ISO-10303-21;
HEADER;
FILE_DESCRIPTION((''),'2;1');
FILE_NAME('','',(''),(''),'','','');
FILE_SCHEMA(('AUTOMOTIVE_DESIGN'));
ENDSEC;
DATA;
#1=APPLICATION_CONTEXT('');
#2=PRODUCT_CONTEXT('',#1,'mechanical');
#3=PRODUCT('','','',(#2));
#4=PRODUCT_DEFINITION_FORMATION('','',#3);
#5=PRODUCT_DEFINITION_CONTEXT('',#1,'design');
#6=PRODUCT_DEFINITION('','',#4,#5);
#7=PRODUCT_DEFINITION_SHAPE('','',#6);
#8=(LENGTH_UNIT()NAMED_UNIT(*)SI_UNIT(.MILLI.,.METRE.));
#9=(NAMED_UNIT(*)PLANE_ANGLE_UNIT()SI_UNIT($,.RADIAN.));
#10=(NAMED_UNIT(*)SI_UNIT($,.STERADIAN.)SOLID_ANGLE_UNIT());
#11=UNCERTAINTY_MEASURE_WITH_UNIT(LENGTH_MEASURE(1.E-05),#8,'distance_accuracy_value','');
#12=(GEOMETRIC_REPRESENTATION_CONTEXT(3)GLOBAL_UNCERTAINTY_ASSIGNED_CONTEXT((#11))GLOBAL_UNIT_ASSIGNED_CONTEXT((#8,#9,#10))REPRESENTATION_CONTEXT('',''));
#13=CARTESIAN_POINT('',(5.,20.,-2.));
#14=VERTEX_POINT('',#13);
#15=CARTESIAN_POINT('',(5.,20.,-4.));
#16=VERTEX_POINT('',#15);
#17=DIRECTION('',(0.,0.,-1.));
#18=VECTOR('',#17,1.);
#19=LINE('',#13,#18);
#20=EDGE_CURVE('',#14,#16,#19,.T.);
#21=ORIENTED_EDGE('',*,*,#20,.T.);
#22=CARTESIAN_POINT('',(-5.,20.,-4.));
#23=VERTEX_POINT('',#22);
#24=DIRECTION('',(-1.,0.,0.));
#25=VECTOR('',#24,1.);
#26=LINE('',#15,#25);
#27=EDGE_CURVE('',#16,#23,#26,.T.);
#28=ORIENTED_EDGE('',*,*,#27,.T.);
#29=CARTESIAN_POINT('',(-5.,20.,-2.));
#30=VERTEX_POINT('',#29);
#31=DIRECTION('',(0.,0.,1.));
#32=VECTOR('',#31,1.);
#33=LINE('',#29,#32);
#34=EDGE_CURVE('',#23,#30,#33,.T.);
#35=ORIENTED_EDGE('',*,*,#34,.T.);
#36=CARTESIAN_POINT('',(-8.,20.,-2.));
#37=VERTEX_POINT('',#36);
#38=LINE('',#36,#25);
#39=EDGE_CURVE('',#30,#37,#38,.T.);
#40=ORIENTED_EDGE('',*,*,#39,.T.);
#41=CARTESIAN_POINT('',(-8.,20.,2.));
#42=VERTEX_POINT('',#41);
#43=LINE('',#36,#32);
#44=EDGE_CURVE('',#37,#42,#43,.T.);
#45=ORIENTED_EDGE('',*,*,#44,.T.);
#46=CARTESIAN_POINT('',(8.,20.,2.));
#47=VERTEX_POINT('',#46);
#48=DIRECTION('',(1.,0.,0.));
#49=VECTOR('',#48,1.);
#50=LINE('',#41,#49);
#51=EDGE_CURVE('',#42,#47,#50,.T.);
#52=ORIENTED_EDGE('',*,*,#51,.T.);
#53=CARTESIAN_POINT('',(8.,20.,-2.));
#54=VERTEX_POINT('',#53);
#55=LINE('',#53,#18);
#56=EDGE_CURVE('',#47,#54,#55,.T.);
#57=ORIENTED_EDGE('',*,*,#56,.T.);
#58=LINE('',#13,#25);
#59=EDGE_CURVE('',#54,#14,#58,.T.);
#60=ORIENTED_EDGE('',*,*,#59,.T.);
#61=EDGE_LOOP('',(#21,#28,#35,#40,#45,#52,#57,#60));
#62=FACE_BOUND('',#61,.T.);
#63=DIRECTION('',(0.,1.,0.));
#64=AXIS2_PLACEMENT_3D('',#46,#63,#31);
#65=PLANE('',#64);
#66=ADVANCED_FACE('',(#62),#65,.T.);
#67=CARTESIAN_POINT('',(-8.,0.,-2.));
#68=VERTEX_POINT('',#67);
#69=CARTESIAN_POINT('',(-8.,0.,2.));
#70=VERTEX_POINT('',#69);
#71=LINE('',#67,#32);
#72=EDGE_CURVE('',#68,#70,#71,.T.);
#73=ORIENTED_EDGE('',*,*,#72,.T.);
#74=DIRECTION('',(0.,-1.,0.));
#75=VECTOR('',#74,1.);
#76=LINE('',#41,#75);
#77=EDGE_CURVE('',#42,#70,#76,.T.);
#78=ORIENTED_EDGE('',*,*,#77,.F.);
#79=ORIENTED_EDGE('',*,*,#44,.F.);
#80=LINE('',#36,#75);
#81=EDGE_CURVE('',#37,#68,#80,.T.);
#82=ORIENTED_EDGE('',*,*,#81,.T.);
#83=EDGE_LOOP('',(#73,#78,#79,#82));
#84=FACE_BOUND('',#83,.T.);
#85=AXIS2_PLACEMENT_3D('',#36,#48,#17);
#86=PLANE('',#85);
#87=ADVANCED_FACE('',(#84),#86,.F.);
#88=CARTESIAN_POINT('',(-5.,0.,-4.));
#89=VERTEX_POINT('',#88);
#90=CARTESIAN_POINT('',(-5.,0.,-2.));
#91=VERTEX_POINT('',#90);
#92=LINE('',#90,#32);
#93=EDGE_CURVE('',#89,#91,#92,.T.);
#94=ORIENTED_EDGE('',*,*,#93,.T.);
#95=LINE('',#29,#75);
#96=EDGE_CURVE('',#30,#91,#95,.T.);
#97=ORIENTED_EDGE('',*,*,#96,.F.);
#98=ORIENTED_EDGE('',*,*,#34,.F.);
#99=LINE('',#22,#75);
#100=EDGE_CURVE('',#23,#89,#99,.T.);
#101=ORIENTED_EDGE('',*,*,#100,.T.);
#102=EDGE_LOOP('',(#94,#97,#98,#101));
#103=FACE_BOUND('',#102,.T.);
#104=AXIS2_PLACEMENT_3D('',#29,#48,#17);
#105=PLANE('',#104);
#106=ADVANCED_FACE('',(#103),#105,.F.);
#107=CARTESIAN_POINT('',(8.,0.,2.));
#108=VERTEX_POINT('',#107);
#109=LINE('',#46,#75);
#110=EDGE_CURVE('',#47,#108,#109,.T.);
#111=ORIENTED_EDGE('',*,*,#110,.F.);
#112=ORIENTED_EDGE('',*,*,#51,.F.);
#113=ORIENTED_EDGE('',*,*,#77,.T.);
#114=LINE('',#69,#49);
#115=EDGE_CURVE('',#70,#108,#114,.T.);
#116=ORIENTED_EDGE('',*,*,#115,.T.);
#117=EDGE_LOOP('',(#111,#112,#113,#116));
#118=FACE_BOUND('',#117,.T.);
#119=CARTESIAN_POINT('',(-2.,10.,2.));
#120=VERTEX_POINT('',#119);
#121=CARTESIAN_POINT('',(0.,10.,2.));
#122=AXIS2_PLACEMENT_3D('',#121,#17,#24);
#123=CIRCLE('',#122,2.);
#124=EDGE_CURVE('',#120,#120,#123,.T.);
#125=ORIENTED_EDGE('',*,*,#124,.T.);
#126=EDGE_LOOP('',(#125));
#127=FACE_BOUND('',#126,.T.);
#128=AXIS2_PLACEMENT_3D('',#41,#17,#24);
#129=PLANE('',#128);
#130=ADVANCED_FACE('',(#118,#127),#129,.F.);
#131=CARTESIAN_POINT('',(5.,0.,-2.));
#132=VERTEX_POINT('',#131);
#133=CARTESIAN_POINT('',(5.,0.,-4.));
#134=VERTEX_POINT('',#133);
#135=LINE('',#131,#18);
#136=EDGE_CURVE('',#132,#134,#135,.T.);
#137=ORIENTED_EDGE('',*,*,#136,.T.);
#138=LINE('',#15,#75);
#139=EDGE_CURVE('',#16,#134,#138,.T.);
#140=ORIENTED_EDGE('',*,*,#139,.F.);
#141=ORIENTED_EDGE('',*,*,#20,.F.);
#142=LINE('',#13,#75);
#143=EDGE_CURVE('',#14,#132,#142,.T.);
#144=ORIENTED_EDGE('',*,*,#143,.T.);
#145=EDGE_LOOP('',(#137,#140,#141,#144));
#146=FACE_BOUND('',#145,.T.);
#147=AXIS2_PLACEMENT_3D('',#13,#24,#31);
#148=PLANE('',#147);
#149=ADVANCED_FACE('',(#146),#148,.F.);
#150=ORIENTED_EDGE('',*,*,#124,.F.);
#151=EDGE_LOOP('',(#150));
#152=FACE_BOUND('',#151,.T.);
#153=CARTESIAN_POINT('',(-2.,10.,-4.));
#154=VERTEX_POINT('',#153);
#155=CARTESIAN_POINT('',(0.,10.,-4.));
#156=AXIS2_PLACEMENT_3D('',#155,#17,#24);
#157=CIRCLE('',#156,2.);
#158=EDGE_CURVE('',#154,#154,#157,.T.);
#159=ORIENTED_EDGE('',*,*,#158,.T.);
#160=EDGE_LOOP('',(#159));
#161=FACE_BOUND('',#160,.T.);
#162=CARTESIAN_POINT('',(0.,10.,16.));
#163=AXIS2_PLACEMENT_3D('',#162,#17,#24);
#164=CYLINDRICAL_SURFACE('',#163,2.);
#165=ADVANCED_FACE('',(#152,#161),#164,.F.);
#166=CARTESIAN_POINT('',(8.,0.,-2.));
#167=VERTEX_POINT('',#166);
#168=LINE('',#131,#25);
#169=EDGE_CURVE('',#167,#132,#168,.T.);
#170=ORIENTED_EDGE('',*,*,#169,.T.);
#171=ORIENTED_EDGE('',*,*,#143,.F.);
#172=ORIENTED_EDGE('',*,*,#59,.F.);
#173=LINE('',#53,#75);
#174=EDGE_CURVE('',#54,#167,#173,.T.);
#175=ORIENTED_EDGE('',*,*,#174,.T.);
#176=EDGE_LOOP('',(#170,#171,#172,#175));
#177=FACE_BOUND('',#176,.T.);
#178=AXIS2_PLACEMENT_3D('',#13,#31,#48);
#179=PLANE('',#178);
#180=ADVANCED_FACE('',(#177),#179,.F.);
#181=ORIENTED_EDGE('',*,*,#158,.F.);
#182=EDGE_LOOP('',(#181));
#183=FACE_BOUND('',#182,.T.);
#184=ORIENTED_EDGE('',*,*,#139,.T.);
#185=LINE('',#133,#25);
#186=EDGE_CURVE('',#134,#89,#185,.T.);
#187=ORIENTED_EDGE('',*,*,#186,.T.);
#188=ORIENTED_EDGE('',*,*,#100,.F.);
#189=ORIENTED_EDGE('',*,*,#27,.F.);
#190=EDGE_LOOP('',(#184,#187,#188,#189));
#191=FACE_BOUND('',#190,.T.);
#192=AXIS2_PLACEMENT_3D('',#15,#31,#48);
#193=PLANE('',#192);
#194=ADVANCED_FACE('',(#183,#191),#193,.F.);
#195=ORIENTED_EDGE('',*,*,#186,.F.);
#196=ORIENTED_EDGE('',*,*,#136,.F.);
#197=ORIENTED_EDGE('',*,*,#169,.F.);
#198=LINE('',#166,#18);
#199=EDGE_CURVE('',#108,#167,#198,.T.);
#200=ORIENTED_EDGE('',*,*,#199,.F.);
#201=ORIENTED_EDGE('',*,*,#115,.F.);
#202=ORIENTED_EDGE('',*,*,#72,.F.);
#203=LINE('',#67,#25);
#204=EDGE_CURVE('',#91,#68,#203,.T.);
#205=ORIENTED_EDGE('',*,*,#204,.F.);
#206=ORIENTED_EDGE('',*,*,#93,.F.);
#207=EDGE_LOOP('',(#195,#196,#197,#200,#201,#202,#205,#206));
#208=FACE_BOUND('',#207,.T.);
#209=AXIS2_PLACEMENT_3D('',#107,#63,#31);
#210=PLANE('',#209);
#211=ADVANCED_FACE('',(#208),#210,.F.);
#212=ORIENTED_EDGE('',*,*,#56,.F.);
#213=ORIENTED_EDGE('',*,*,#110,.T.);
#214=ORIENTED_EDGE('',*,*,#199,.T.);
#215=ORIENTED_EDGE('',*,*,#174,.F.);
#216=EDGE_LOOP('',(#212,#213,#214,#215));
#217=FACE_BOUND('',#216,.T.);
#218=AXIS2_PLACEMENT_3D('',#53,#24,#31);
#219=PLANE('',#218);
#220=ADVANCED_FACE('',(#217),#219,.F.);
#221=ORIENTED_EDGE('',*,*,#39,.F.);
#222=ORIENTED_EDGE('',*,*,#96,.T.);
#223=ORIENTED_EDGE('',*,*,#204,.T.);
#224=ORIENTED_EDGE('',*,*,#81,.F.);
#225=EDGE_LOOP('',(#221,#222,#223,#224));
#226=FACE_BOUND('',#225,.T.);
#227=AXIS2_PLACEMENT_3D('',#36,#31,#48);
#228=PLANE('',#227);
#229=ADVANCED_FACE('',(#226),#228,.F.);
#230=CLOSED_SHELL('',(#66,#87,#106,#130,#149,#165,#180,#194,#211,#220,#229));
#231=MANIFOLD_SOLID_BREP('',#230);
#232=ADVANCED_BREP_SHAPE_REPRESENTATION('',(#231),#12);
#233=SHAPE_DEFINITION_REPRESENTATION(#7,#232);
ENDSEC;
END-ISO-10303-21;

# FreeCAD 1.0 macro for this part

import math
import FreeCAD as App
import Part
import Sketcher

V = App.Vector
Q = App.Units.Quantity


def add_polygon(sketch, points):
    """Adds a closed chain of lines whose ends are joined by coincident constraints."""
    first, n = sketch.GeometryCount, len(points)
    for a, b in zip(points, points[1:] + points[:1]):
        sketch.addGeometry(Part.LineSegment(App.Vector(*a, 0), App.Vector(*b, 0)), False)
    for i in range(n):
        sketch.addConstraint(Sketcher.Constraint("Coincident", first + i, 2, first + (i + 1) % n, 1))

doc = App.newDocument("Part")
params = doc.addObject("Spreadsheet::Sheet", "Params")
for row, (alias, value) in enumerate([
    ("sketch1_width", "3 mm"),
    ("sketch1_width2", "10 mm"),
    ("sketch1_height", "2 mm"),
    ("sketch1_height2", "4 mm"),
    ("pad1_length", "20 mm"),
    ("sketch2_radius", "2 mm"),
    ("pocket1_length", "20 mm"),
], start=1):
    params.set(f"A{row}", alias)
    params.set(f"B{row}", "=" + value)
    params.setAlias(f"B{row}", alias)

body = doc.addObject("PartDesign::Body", "Body")

# Sketch on XZ plane
sketch1 = body.newObject("Sketcher::SketchObject", "Sketch")
sketch1.AttachmentSupport = (doc.getObject("XZ_Plane"), [""])
sketch1.MapMode = "FlatFace"
add_polygon(sketch1, [(8, -2), (5, -2), (5, -4), (-5, -4), (-5, -2), (-8, -2), (-8, 2), (8, 2)])  # lines 0-7
sketch1.addConstraint([
    Sketcher.Constraint("Horizontal", 0),
    Sketcher.Constraint("Vertical", 1),
    Sketcher.Constraint("Horizontal", 2),
    Sketcher.Constraint("Vertical", 3),
    Sketcher.Constraint("Horizontal", 4),
    Sketcher.Constraint("Vertical", 5),
    Sketcher.Constraint("Horizontal", 6),
    Sketcher.Constraint("Vertical", 7),
    Sketcher.Constraint("Symmetric", 4, 2, 6, 2, -1, 1),
    Sketcher.Constraint("Symmetric", 0, 2, 3, 2, -2),
    Sketcher.Constraint("DistanceX", 0, 2, 0, 1, Q("3 mm")),
    Sketcher.Constraint("DistanceX", 2, 2, 2, 1, Q("10 mm")),
    Sketcher.Constraint("DistanceY", 1, 2, 1, 1, Q("2 mm")),
    Sketcher.Constraint("DistanceY", 5, 1, 5, 2, Q("4 mm")),
])
sketch1.setExpression("Constraints[18]", "Params.sketch1_width")
sketch1.setExpression("Constraints[19]", "Params.sketch1_width2")
sketch1.setExpression("Constraints[20]", "Params.sketch1_height")
sketch1.setExpression("Constraints[21]", "Params.sketch1_height2")
pad1 = body.newObject("PartDesign::Pad", "Pad")
pad1.Profile = sketch1
pad1.setExpression("Length", "Params.pad1_length")
pad1.Reversed = True

# Sketch on XY plane
sketch2 = body.newObject("Sketcher::SketchObject", "Sketch001")
sketch2.AttachmentSupport = (doc.getObject("XY_Plane"), [""])
sketch2.MapMode = "FlatFace"
sketch2.AttachmentOffset = App.Placement(V(0, 0, -4), App.Rotation())
sketch2.addGeometry([
    Part.ArcOfCircle(Part.Circle(V(0, 10, 0), V(0, 0, 1), 2), math.radians(63.434949), math.radians(180)),
    Part.ArcOfCircle(Part.Circle(V(0, 10, 0), V(0, 0, 1), 2), math.radians(-116.565051), math.radians(63.434949)),
    Part.ArcOfCircle(Part.Circle(V(0, 10, 0), V(0, 0, 1), 2), math.radians(180), math.radians(243.434949)),
], False)
sketch2.addConstraint([
    Sketcher.Constraint("Tangent", 0, 1, 1, 2),
    Sketcher.Constraint("Tangent", 1, 1, 2, 2),
    Sketcher.Constraint("Tangent", 2, 1, 0, 2),
    Sketcher.Constraint("PointOnObject", 0, 3, -2),
    Sketcher.Constraint("Horizontal", 1, 3, 2, 1),
    Sketcher.Constraint("Radius", 0, Q("2 mm")),
    Sketcher.Constraint("DistanceY", -1, 1, 0, 3, Q("10 mm")),
    Sketcher.Constraint("DistanceY", 1, 1, 0, 1, Q("3.577709 mm")),
    Sketcher.Constraint("DistanceX", -1, 1, 0, 1, Q("0.894427 mm")),
])
sketch2.setExpression("Constraints[5]", "Params.sketch2_radius")
pocket1 = body.newObject("PartDesign::Pocket", "Pocket")
pocket1.Profile = sketch2
pocket1.setExpression("Length", "Params.pocket1_length")
pocket1.Reversed = True

doc.recompute()
